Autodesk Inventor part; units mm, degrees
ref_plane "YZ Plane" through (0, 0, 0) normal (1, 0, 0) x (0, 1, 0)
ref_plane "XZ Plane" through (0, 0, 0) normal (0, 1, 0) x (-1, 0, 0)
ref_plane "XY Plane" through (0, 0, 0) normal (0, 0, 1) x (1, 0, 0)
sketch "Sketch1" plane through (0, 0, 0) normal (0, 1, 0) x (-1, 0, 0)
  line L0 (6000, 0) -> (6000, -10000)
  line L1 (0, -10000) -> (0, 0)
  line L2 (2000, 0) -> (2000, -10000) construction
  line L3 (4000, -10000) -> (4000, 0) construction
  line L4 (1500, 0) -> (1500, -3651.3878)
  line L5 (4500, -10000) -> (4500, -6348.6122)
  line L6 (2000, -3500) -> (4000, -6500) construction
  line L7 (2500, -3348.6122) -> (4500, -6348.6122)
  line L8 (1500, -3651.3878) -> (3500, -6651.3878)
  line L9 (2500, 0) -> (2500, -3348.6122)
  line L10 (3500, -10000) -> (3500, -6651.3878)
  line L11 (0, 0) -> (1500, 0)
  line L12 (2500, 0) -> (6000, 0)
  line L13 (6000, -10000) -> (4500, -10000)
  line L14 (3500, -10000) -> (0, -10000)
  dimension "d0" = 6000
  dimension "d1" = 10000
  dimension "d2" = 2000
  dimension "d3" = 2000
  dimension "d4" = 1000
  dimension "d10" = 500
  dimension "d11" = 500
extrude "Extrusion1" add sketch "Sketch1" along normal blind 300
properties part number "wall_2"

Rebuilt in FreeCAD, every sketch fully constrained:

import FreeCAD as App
import Part
import Sketcher
Q = App.Units.Quantity

doc = App.newDocument("Part")
body = doc.addObject("PartDesign::Body", "Body")
body.AllowCompound = True

# Sketch on XZ plane
sketch1 = body.newObject("Sketcher::SketchObject", "Sketch")
sketch1.AttachmentSupport = (doc.getObject("XZ_Plane"), [""])
sketch1.MapMode = "FlatFace"
sketch1.addGeometry([
    Part.LineSegment(App.Vector(-6000, -10000, 0), App.Vector(-6000, 0, 0)),  # 0
    Part.LineSegment(App.Vector(-6000, 0, 0), App.Vector(-2500, 0, 0)),  # 1
    Part.LineSegment(App.Vector(-2500, 0, 0), App.Vector(-2500, -3348.6122, 0)),  # 2
    Part.LineSegment(App.Vector(-2500, -3348.6122, 0), App.Vector(-4500, -6348.6122, 0)),  # 3
    Part.LineSegment(App.Vector(-4500, -6348.6122, 0), App.Vector(-4500, -10000, 0)),  # 4
    Part.LineSegment(App.Vector(-4500, -10000, 0), App.Vector(-6000, -10000, 0)),  # 5
    Part.LineSegment(App.Vector(0, 0, 0), App.Vector(0, -10000, 0)),  # 6
    Part.LineSegment(App.Vector(0, -10000, 0), App.Vector(-3500, -10000, 0)),  # 7
    Part.LineSegment(App.Vector(-3500, -10000, 0), App.Vector(-3500, -6651.3878, 0)),  # 8
    Part.LineSegment(App.Vector(-3500, -6651.3878, 0), App.Vector(-1500, -3651.3878, 0)),  # 9
    Part.LineSegment(App.Vector(-1500, -3651.3878, 0), App.Vector(-1500, 0, 0)),  # 10
    Part.LineSegment(App.Vector(-1500, 0, 0), App.Vector(0, 0, 0)),  # 11
], False)
sketch1.addConstraint([
    Sketcher.Constraint("Coincident", 0, 2, 1, 1),
    Sketcher.Constraint("Coincident", 1, 2, 2, 1),
    Sketcher.Constraint("Coincident", 2, 2, 3, 1),
    Sketcher.Constraint("Coincident", 3, 2, 4, 1),
    Sketcher.Constraint("Coincident", 4, 2, 5, 1),
    Sketcher.Constraint("Coincident", 5, 2, 0, 1),
    Sketcher.Constraint("Coincident", 6, 2, 7, 1),
    Sketcher.Constraint("Coincident", 7, 2, 8, 1),
    Sketcher.Constraint("Coincident", 8, 2, 9, 1),
    Sketcher.Constraint("Coincident", 9, 2, 10, 1),
    Sketcher.Constraint("Coincident", 10, 2, 11, 1),
    Sketcher.Constraint("Coincident", 11, 2, 6, 1),
    Sketcher.Constraint("Vertical", 0),
    Sketcher.Constraint("Horizontal", 1),
    Sketcher.Constraint("Vertical", 2),
    Sketcher.Constraint("Vertical", 4),
    Sketcher.Constraint("Horizontal", 5),
    Sketcher.Constraint("Vertical", 6),
    Sketcher.Constraint("Horizontal", 7),
    Sketcher.Constraint("Vertical", 8),
    Sketcher.Constraint("Vertical", 10),
    Sketcher.Constraint("Horizontal", 11),
    Sketcher.Constraint("Coincident", 11, 2, -1, 1),
    Sketcher.Constraint("PointOnObject", 0, 2, -1),
    Sketcher.Constraint("Parallel", 3, 9),
    Sketcher.Constraint("Horizontal", 5, 2, 6, 2),
    Sketcher.Constraint("Equal", 1, 7),
    Sketcher.Constraint("Equal", 5, 11),
    Sketcher.Constraint("Equal", 2, 8),
    Sketcher.Constraint("DistanceY", 0, 1, 0, 2, Q("10000 mm")),
    Sketcher.Constraint("DistanceX", 0, 2, -1, 1, Q("6000 mm")),
    Sketcher.Constraint("DistanceX", 3, 2, 2, 2, Q("2000 mm")),
    Sketcher.Constraint("DistanceX", 4, 2, 7, 2, Q("1000 mm")),
    Sketcher.Constraint("DistanceY", 3, 2, 2, 2, Q("3000 mm")),
    Sketcher.Constraint("DistanceY", 2, 2, 2, 1, Q("3348.6122 mm")),
])
pad1 = body.newObject("PartDesign::Pad", "Pad")
pad1.Profile = sketch1
pad1.Length = 300
pad1.Reversed = True

doc.recompute()
